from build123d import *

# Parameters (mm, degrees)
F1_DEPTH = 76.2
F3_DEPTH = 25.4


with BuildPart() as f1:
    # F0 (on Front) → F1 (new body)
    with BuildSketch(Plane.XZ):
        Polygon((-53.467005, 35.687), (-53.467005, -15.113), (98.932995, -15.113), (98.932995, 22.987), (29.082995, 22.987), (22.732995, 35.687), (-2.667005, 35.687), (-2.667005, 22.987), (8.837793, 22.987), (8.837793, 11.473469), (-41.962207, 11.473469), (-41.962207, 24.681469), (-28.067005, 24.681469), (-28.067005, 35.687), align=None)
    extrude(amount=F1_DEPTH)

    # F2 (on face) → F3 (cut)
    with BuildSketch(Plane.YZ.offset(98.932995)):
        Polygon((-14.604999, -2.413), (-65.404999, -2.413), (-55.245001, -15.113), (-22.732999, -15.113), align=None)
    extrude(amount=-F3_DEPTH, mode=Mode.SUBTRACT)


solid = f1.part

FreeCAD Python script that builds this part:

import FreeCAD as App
import Part
import Sketcher
from FreeCAD import Vector
Q = App.Units.Quantity


def add_polygon(sketch, points):
    """Adds a closed chain of lines whose ends are joined by coincident constraints."""
    first, n = sketch.GeometryCount, len(points)
    for a, b in zip(points, points[1:] + points[:1]):
        sketch.addGeometry(Part.LineSegment(App.Vector(*a, 0), App.Vector(*b, 0)), False)
    for i in range(n):
        sketch.addConstraint(Sketcher.Constraint("Coincident", first + i, 2, first + (i + 1) % n, 1))

doc = App.newDocument("Part")
body = doc.addObject("PartDesign::Body", "Body")

# Sketch on XZ plane
sketch1 = body.newObject("Sketcher::SketchObject", "Sketch")
sketch1.AttachmentSupport = (doc.getObject("XZ_Plane"), [""])
sketch1.MapMode = "FlatFace"
add_polygon(sketch1, [(-53.467005, 35.687), (-53.467005, -15.113), (98.932995, -15.113), (98.932995, 22.987), (29.082995, 22.987), (22.732995, 35.687), (-2.667005, 35.687), (-2.667005, 22.987), (8.837793, 22.987), (8.837793, 11.473469), (-41.962207, 11.473469), (-41.962207, 24.681469), (-28.067005, 24.681469), (-28.067005, 35.687)])  # lines 0-13
sketch1.addConstraint([
    Sketcher.Constraint("Vertical", 0),
    Sketcher.Constraint("Horizontal", 1),
    Sketcher.Constraint("Vertical", 2),
    Sketcher.Constraint("Horizontal", 3),
    Sketcher.Constraint("Horizontal", 5),
    Sketcher.Constraint("Vertical", 6),
    Sketcher.Constraint("Horizontal", 7),
    Sketcher.Constraint("Vertical", 8),
    Sketcher.Constraint("Horizontal", 9),
    Sketcher.Constraint("Vertical", 10),
    Sketcher.Constraint("Horizontal", 11),
    Sketcher.Constraint("Vertical", 12),
    Sketcher.Constraint("Horizontal", 13),
    Sketcher.Constraint("Horizontal", 3, 2, 6, 2),
    Sketcher.Constraint("Horizontal", 5, 2, 12, 2),
    Sketcher.Constraint("Equal", 5, 13),
    Sketcher.Constraint("Equal", 9, 0),
    Sketcher.Constraint("DistanceX", 1, 1, 1, 2, Q("6 in")),
    Sketcher.Constraint("DistanceX", 5, 2, 5, 1, Q("1 in")),
    Sketcher.Constraint("DistanceX", 9, 2, 9, 1, Q("2 in")),
    Sketcher.Constraint("DistanceY", 2, 1, 2, 2, Q("1.5 in")),
    Sketcher.Constraint("DistanceX", 4, 2, 2, 2, Q("3 in")),
    Sketcher.Constraint("DistanceX", 3, 2, 3, 1, Q("2.75 in")),
    Sketcher.Constraint("DistanceY", 10, 1, 10, 2, Q("0.52 in")),
    Sketcher.Constraint("DistanceX", 0, 2, -1, 1, Q("2.1050002 in")),
    Sketcher.Constraint("DistanceY", 0, 2, -1, 1, Q("0.595 in")),
    Sketcher.Constraint("DistanceX", 11, 1, 11, 2, Q("13.895202 mm")),
    Sketcher.Constraint("DistanceY", 8, 2, 8, 1, Q("11.513531 mm")),
])
pad1 = body.newObject("PartDesign::Pad", "Pad")
pad1.Profile = sketch1
pad1.Length = Q("3 in")

# Sketch on YZ plane
sketch2 = body.newObject("Sketcher::SketchObject", "Sketch001")
sketch2.AttachmentSupport = (doc.getObject("YZ_Plane"), [""])
sketch2.MapMode = "FlatFace"
sketch2.AttachmentOffset = App.Placement(Vector(0, 0, 3.8949998 * 25.4), App.Rotation())
add_polygon(sketch2, [(-14.604999, -2.413), (-65.404999, -2.413), (-55.245001, -15.113), (-22.732999, -15.113)])  # lines 0-3
sketch2.addConstraint([
    Sketcher.Constraint("Horizontal", 0),
    Sketcher.Constraint("Horizontal", 2),
    Sketcher.Constraint("DistanceX", 0, 2, 0, 1, Q("2 in")),
    Sketcher.Constraint("DistanceX", 2, 1, 2, 2, Q("1.2800001 in")),
    Sketcher.Constraint("DistanceX", 0, 2, 1, 2, Q("0.3999999 in")),
    Sketcher.Constraint("DistanceY", 1, 2, 0, 2, Q("0.5 in")),
    Sketcher.Constraint("DistanceX", 0, 2, -1, 1, Q("2.575 in")),
    Sketcher.Constraint("DistanceY", 0, 2, -1, 1, Q("0.095 in")),
])
pocket1 = body.newObject("PartDesign::Pocket", "Pocket")
pocket1.Profile = sketch2
pocket1.Length = Q("1 in")

doc.recompute()
